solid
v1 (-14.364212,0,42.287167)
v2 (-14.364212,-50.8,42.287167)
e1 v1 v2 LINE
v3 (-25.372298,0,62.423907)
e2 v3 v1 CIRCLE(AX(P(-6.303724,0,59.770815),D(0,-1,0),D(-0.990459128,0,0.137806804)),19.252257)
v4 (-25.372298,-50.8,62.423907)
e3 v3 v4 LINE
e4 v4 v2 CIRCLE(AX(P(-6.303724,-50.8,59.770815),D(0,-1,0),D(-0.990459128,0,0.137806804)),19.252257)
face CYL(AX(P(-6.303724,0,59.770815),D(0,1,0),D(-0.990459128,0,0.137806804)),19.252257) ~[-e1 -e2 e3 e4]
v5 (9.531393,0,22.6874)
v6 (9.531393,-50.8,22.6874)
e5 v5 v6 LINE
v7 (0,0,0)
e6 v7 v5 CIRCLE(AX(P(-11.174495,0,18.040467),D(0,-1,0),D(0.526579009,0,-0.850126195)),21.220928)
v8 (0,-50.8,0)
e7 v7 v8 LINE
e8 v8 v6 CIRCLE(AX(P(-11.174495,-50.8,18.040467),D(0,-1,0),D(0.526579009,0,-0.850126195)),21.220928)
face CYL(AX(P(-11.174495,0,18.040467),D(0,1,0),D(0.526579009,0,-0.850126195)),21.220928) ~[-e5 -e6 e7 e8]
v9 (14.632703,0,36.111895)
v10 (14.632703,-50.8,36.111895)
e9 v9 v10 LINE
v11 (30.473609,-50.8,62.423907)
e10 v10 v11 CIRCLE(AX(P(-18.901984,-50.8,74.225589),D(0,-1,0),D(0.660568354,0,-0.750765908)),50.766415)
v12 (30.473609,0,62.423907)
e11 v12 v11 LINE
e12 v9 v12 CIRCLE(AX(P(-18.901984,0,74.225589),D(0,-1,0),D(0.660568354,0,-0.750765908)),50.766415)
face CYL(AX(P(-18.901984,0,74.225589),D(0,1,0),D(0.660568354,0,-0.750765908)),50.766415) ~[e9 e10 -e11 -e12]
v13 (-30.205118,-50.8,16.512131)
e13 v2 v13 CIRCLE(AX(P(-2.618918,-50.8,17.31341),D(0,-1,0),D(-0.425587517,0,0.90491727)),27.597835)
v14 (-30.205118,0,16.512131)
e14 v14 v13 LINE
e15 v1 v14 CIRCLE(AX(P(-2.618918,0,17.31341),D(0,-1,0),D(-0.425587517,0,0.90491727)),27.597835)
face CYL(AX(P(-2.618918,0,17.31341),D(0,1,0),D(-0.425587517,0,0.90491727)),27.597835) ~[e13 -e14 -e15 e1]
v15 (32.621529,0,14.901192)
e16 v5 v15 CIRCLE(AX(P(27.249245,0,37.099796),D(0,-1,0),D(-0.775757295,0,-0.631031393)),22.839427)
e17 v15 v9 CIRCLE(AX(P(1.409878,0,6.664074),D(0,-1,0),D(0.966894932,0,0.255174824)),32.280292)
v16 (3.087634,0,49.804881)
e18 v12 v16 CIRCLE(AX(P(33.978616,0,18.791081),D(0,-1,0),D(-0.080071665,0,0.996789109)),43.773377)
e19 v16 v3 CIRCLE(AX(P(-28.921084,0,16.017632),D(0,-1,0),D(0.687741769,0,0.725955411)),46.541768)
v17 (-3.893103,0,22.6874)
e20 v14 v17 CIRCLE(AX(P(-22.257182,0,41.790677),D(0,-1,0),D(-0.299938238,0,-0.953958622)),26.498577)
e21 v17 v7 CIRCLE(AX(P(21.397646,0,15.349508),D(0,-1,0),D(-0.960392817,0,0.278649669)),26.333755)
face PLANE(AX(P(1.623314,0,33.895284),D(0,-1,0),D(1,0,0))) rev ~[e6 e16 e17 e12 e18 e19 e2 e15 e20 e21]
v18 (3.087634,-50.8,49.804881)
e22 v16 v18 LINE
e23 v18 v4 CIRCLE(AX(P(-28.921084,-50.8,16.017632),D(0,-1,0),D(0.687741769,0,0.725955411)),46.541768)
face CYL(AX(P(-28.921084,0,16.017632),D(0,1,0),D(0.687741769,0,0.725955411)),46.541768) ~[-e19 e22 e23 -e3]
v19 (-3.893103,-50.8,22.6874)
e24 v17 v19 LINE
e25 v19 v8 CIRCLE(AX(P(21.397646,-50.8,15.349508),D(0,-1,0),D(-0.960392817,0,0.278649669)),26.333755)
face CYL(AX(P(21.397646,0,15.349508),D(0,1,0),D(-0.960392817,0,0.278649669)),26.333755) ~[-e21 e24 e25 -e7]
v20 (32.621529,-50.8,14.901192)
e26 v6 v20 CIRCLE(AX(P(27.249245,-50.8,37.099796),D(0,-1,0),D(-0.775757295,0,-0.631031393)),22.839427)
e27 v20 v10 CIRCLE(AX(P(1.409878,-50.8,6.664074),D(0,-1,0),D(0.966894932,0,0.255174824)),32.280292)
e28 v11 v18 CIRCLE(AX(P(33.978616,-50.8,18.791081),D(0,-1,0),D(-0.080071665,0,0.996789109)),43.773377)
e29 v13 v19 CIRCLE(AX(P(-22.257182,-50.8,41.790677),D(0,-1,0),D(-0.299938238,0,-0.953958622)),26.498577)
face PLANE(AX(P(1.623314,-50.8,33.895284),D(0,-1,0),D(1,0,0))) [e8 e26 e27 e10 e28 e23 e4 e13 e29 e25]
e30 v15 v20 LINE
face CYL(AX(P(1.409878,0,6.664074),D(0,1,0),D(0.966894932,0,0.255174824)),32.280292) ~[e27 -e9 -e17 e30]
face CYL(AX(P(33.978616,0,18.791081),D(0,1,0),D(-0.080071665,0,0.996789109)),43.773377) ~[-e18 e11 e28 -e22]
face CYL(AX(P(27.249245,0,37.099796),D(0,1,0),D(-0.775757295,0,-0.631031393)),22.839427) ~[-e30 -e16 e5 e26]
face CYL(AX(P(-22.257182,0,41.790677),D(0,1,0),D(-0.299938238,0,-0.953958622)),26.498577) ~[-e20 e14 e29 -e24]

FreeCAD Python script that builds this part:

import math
import FreeCAD as App
import Part
import Sketcher

V = App.Vector
Q = App.Units.Quantity

doc = App.newDocument("Part")
params = doc.addObject("Spreadsheet::Sheet", "Params")
for row, (alias, value) in enumerate([
    ("pad1_length", "2 in"),
], start=1):
    params.set(f"A{row}", alias)
    params.set(f"B{row}", "=" + value)
    params.setAlias(f"B{row}", alias)

body = doc.addObject("PartDesign::Body", "Body")

# Sketch on XZ plane
sketch1 = doc.addObject("Sketcher::SketchObject", "Sketch")
body.addObject(sketch1)
sketch1.AttachmentSupport = (doc.XZ_Plane, [""])
sketch1.MapMode = "FlatFace"
sketch1.addGeometry([
    Part.ArcOfCircle(Part.Circle(V(-18.901984, 74.225589, 0), V(0, 0, 1), 50.766415), math.radians(-48.656767), math.radians(-13.44255)),  # 0
    Part.ArcOfCircle(Part.Circle(V(33.978616, 18.791081, 0), V(0, 0, 1), 43.773377), math.radians(94.592685), math.radians(134.886327)),  # 1
    Part.ArcOfCircle(Part.Circle(V(-28.921084, 16.017632, 0), V(0, 0, 1), 46.541768), math.radians(46.548385), math.radians(85.626982)),  # 2
    Part.ArcOfCircle(Part.Circle(V(-6.303724, 59.770815, 0), V(0, 0, 1), 19.252257), math.radians(172.079045), math.radians(245.248876)),  # 3
    Part.ArcOfCircle(Part.Circle(V(-2.618918, 17.31341, 0), V(0, 0, 1), 27.597835), math.radians(115.187857), math.radians(181.663766)),  # 4
    Part.ArcOfCircle(Part.Circle(V(-22.257182, 41.790677, 0), V(0, 0, 1), 26.498577), math.radians(-107.453894), math.radians(-46.130249)),  # 5
    Part.ArcOfCircle(Part.Circle(V(21.397646, 15.349508, 0), V(0, 0, 1), 26.333755), math.radians(163.820371), math.radians(215.6536)),  # 6
    Part.ArcOfCircle(Part.Circle(V(-11.174495, 18.040467, 0), V(0, 0, 1), 21.220928), math.radians(-58.225398), math.radians(12.649059)),  # 7
    Part.ArcOfCircle(Part.Circle(V(27.249245, 37.099796, 0), V(0, 0, 1), 22.839427), math.radians(-140.873742), math.radians(-76.395425)),  # 8
    Part.ArcOfCircle(Part.Circle(V(1.409878, 6.664074, 0), V(0, 0, 1), 32.280292), math.radians(14.783945), math.radians(65.8187)),  # 9
], False)
sketch1.addConstraint([
    Sketcher.Constraint("Coincident", 0, 2, 1, 1),
    Sketcher.Constraint("Coincident", 1, 2, 2, 1),
    Sketcher.Constraint("Coincident", 2, 2, 3, 1),
    Sketcher.Constraint("Coincident", 3, 2, 4, 1),
    Sketcher.Constraint("Coincident", 4, 2, 5, 1),
    Sketcher.Constraint("Coincident", 5, 2, 6, 1),
    Sketcher.Constraint("Coincident", 6, 2, 7, 1),
    Sketcher.Constraint("Coincident", 7, 2, 8, 1),
    Sketcher.Constraint("Coincident", 8, 2, 9, 1),
    Sketcher.Constraint("Coincident", 9, 2, 0, 1),
    Sketcher.Constraint("Coincident", 6, 2, -1, 1),
    Sketcher.Constraint("Radius", 2, Q("46.541768 mm")),
    Sketcher.Constraint("Radius", 7, Q("21.220928 mm")),
    Sketcher.Constraint("Radius", 9, Q("32.280292 mm")),
    Sketcher.Constraint("Radius", 0, Q("50.766415 mm")),
    Sketcher.Constraint("Radius", 1, Q("43.773377 mm")),
    Sketcher.Constraint("Radius", 3, Q("19.252257 mm")),
    Sketcher.Constraint("Radius", 4, Q("27.597835 mm")),
    Sketcher.Constraint("Radius", 5, Q("26.498577 mm")),
    Sketcher.Constraint("Radius", 6, Q("26.333755 mm")),
    Sketcher.Constraint("Radius", 8, Q("22.839427 mm")),
    Sketcher.Constraint("DistanceX", 2, 2, -1, 1, Q("25.372298 mm")),
    Sketcher.Constraint("DistanceY", -1, 1, 5, 2, Q("22.6874 mm")),
    Sketcher.Constraint("DistanceY", -1, 1, 7, 2, Q("22.6874 mm")),
    Sketcher.Constraint("DistanceX", 0, 3, 1, 3, Q("52.880601 mm")),
    Sketcher.Constraint("DistanceX", 2, 3, 0, 3, Q("10.0191 mm")),
    Sketcher.Constraint("DistanceX", 6, 3, 8, 3, Q("5.851599 mm")),
    Sketcher.Constraint("DistanceY", 6, 3, 0, 2, Q("47.074399 mm")),
    Sketcher.Constraint("DistanceY", 7, 3, 3, 2, Q("24.2467 mm")),
    Sketcher.Constraint("DistanceY", 2, 3, 4, 2, Q("0.494499 mm")),
    Sketcher.Constraint("DistanceX", 4, 2, 4, 3, Q("27.5862 mm")),
    Sketcher.Constraint("DistanceY", 9, 2, 8, 3, Q("0.987901 mm")),
    Sketcher.Constraint("DistanceY", -1, 1, 0, 3, Q("74.225589 mm")),
    Sketcher.Constraint("DistanceY", -1, 1, 1, 3, Q("18.791081 mm")),
    Sketcher.Constraint("DistanceX", 4, 3, -1, 1, Q("2.618918 mm")),
    Sketcher.Constraint("DistanceY", -1, 1, 4, 3, Q("17.31341 mm")),
    Sketcher.Constraint("DistanceX", -1, 1, 9, 3, Q("1.409878 mm")),
    Sketcher.Constraint("DistanceX", -1, 1, 0, 2, Q("30.473609 mm")),
    Sketcher.Constraint("DistanceX", 3, 2, -1, 1, Q("14.364212 mm")),
])
pad1 = doc.addObject("PartDesign::Pad", "Pad")
body.addObject(pad1)
pad1.Profile = sketch1
pad1.setExpression("Length", "Params.pad1_length")

doc.recompute()
